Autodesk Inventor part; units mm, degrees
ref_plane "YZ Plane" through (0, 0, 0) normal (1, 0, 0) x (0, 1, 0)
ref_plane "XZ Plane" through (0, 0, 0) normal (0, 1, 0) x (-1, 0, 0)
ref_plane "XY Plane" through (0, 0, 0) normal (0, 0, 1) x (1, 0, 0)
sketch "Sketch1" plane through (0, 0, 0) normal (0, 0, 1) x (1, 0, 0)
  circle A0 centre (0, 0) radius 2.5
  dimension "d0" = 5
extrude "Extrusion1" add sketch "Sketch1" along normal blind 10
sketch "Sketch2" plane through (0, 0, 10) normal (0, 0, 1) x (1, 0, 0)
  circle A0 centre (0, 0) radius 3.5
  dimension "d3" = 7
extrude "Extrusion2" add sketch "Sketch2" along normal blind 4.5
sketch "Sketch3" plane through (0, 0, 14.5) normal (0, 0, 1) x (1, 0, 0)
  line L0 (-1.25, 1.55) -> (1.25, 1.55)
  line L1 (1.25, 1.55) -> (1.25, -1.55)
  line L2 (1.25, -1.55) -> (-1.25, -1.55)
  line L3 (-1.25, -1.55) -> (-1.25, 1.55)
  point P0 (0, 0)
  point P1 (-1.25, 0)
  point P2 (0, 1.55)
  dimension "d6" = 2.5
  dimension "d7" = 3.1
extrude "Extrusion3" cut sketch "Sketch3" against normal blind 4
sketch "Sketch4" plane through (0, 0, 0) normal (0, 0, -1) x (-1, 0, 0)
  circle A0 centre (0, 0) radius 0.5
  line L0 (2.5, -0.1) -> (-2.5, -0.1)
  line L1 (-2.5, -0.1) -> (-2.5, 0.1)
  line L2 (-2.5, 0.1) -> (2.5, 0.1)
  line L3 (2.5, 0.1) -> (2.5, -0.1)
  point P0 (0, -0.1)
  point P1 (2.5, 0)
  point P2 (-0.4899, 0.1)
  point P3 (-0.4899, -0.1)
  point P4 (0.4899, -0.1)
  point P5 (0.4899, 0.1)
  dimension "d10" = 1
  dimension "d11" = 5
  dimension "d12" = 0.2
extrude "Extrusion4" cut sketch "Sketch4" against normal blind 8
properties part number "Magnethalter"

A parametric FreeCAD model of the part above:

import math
import FreeCAD as App
import Part
import Sketcher
Q = App.Units.Quantity

doc = App.newDocument("Part")
body = doc.addObject("PartDesign::Body", "Body")

sketch1 = body.newObject("Sketcher::SketchObject", "Sketch")
sketch1.AttachmentSupport = (doc.getObject("XY_Plane"), [""])
sketch1.MapMode = "FlatFace"
sketch1.addGeometry(Part.Circle(App.Vector(0, 0, 0), App.Vector(0, 0, 1), 2.5), False)
sketch1.addConstraint([
    Sketcher.Constraint("Coincident", 0, 3, -1, 1),
    Sketcher.Constraint("Diameter", 0, Q("5 mm")),
])
pad1 = body.newObject("PartDesign::Pad", "Pad")
pad1.Profile = sketch1
pad1.Length = 10

sketch2 = body.newObject("Sketcher::SketchObject", "Sketch001")
sketch2.AttachmentSupport = (doc.getObject("XY_Plane"), [""])
sketch2.MapMode = "FlatFace"
sketch2.AttachmentOffset = App.Placement(App.Vector(0, 0, 10), App.Rotation())
sketch2.addGeometry(Part.Circle(App.Vector(0, 0, 0), App.Vector(0, 0, 1), 3.5), False)
sketch2.addConstraint([
    Sketcher.Constraint("Coincident", 0, 3, -1, 1),
    Sketcher.Constraint("Diameter", 0, Q("7 mm")),
])
pad2 = body.newObject("PartDesign::Pad", "Pad001")
pad2.Profile = sketch2
pad2.Length = 4.5

sketch3 = body.newObject("Sketcher::SketchObject", "Sketch002")
sketch3.AttachmentSupport = (doc.getObject("XY_Plane"), [""])
sketch3.MapMode = "FlatFace"
sketch3.AttachmentOffset = App.Placement(App.Vector(0, 0, 14.5), App.Rotation())
sketch3.addGeometry([
    Part.LineSegment(App.Vector(1.2, 1.6, 0), App.Vector(-1.2, 1.6, 0)),
    Part.LineSegment(App.Vector(-1.2, 1.6, 0), App.Vector(-1.2, -1.6, 0)),
    Part.LineSegment(App.Vector(-1.2, -1.6, 0), App.Vector(1.2, -1.6, 0)),
    Part.LineSegment(App.Vector(1.2, -1.6, 0), App.Vector(1.2, 1.6, 0)),
], False)
sketch3.addConstraint([
    Sketcher.Constraint("Coincident", 0, 2, 1, 1),
    Sketcher.Constraint("Coincident", 1, 2, 2, 1),
    Sketcher.Constraint("Coincident", 2, 2, 3, 1),
    Sketcher.Constraint("Coincident", 3, 2, 0, 1),
    Sketcher.Constraint("Horizontal", 0),
    Sketcher.Constraint("Vertical", 1),
    Sketcher.Constraint("Horizontal", 2),
    Sketcher.Constraint("Vertical", 3),
    Sketcher.Constraint("Symmetric", 0, 2, 2, 2, -1, 1),
    Sketcher.Constraint("DistanceX", 0, 2, 0, 1, Q("2.5 mm")),
    Sketcher.Constraint("DistanceY", 1, 2, 1, 1, Q("3.1 mm")),
])
pocket1 = body.newObject("PartDesign::Pocket", "Pocket")
pocket1.Profile = sketch3
pocket1.Length = 4

sketch4 = body.newObject("Sketcher::SketchObject", "Sketch003")
sketch4.AttachmentSupport = (doc.getObject("XY_Plane"), [""])
sketch4.MapMode = "FlatFace"
sketch4.addGeometry([
    Part.LineSegment(App.Vector(-0.49, -0.1, 0), App.Vector(-2.5, -0.1, 0)),
    Part.LineSegment(App.Vector(-2.5, -0.1, 0), App.Vector(-2.5, 0.1, 0)),
    Part.LineSegment(App.Vector(-2.5, 0.1, 0), App.Vector(-0.49, 0.1, 0)),
    Part.ArcOfCircle(Part.Circle(App.Vector(0, 0, 0), App.Vector(0, 0, 1), 0.5), math.radians(12), math.radians(168)),
    Part.LineSegment(App.Vector(0.49, 0.1, 0), App.Vector(2.5, 0.1, 0)),
    Part.LineSegment(App.Vector(2.5, 0.1, 0), App.Vector(2.5, -0.1, 0)),
    Part.LineSegment(App.Vector(2.5, -0.1, 0), App.Vector(0.49, -0.1, 0)),
    Part.ArcOfCircle(Part.Circle(App.Vector(0, 0, 0), App.Vector(0, 0, 1), 0.5), math.radians(-168), math.radians(-12)),
], False)
sketch4.addConstraint([
    Sketcher.Constraint("Coincident", 0, 2, 1, 1),
    Sketcher.Constraint("Coincident", 1, 2, 2, 1),
    Sketcher.Constraint("Coincident", 2, 2, 3, 2),
    Sketcher.Constraint("Coincident", 3, 1, 4, 1),
    Sketcher.Constraint("Coincident", 4, 2, 5, 1),
    Sketcher.Constraint("Coincident", 5, 2, 6, 1),
    Sketcher.Constraint("Coincident", 6, 2, 7, 2),
    Sketcher.Constraint("Coincident", 7, 1, 0, 1),
    Sketcher.Constraint("Horizontal", 0),
    Sketcher.Constraint("Vertical", 1),
    Sketcher.Constraint("Horizontal", 2),
    Sketcher.Constraint("Horizontal", 4),
    Sketcher.Constraint("Vertical", 5),
    Sketcher.Constraint("Horizontal", 6),
    Sketcher.Constraint("Coincident", 3, 3, -1, 1),
    Sketcher.Constraint("Coincident", 7, 3, -1, 1),
    Sketcher.Constraint("Equal", 3, 7),
    Sketcher.Constraint("Symmetric", 0, 2, 4, 2, -1, 1),
    Sketcher.Constraint("Horizontal", 2, 2, 3, 1),
    Sketcher.Constraint("Horizontal", 0, 2, 5, 2),
    Sketcher.Constraint("Radius", 3, Q("0.5 mm")),
    Sketcher.Constraint("DistanceY", 1, 1, 1, 2, Q("0.2 mm")),
    Sketcher.Constraint("DistanceX", 1, 2, 4, 2, Q("5 mm")),
])
pocket2 = body.newObject("PartDesign::Pocket", "Pocket001")
pocket2.Profile = sketch4
pocket2.Length = 8
pocket2.Reversed = True

doc.recompute()
